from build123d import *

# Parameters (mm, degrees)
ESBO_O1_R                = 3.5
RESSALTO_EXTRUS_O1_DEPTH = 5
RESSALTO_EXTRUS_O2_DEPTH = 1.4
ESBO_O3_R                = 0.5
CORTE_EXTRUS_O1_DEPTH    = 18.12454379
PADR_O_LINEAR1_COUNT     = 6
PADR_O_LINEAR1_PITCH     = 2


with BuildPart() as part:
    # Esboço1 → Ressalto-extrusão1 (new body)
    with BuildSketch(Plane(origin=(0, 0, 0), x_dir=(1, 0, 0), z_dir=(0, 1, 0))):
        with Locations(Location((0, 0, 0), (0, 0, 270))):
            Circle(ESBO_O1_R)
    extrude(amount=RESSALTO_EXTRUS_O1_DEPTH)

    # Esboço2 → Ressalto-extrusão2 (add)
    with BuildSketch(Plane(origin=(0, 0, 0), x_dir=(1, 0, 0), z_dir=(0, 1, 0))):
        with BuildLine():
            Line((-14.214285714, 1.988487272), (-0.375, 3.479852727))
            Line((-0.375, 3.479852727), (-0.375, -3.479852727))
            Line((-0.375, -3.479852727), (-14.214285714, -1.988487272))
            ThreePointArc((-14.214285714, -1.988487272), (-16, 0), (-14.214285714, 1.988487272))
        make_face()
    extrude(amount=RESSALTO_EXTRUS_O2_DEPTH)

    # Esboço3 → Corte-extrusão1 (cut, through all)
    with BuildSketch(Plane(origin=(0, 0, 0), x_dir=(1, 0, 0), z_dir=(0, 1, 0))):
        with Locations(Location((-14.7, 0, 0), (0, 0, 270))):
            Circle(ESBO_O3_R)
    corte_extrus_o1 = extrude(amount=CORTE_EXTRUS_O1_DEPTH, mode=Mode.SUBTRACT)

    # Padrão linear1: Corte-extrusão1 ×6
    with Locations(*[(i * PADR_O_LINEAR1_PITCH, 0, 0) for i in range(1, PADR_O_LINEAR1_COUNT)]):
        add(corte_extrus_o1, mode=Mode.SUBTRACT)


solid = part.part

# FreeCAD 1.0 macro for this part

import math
import FreeCAD as App
import Part
import Sketcher
from FreeCAD import Vector
Q = App.Units.Quantity

doc = App.newDocument("Part")
body = doc.addObject("PartDesign::Body", "Body")

# Sketch on XZ plane
sketch1 = doc.addObject("Sketcher::SketchObject", "Sketch")
body.addObject(sketch1)
sketch1.AttachmentSupport = (doc.XZ_Plane, [""])
sketch1.MapMode = "FlatFace"
sketch1.addGeometry(Part.Circle(Vector(0, 0, 0), Vector(0, 0, 1), 3.5), False)
sketch1.addConstraint([
    Sketcher.Constraint("Coincident", 0, 3, -1, 1),
    Sketcher.Constraint("Diameter", 0, Q("7 mm")),
])
pad1 = doc.addObject("PartDesign::Pad", "Pad")
body.addObject(pad1)
pad1.Profile = sketch1
pad1.Length = 5
pad1.Reversed = True

# Sketch on XZ plane
sketch2 = doc.addObject("Sketcher::SketchObject", "Sketch001")
body.addObject(sketch2)
sketch2.AttachmentSupport = (doc.XZ_Plane, [""])
sketch2.MapMode = "FlatFace"
sketch2.addGeometry([
    Part.LineSegment(Vector(-0.4, -3.5, 0), Vector(-14.2, -2, 0)),
    Part.ArcOfCircle(Part.Circle(Vector(-14, 0, 0), Vector(0, 0, 1), 2), math.radians(96), math.radians(264)),
    Part.LineSegment(Vector(-14.2, 2, 0), Vector(-0.4, 3.5, 0)),
    Part.LineSegment(Vector(-0.4, 3.5, 0), Vector(-0.4, -3.5, 0)),
], False)
sketch2.addConstraint([
    Sketcher.Constraint("Tangent", 0, 2, 1, 2),
    Sketcher.Constraint("Tangent", 1, 1, 2, 1),
    Sketcher.Constraint("Coincident", 2, 2, 3, 1),
    Sketcher.Constraint("Coincident", 3, 2, 0, 1),
    Sketcher.Constraint("Vertical", 3),
    Sketcher.Constraint("Symmetric", 0, 2, 1, 1, -1),
    Sketcher.Constraint("Radius", 1, Q("2 mm")),
    Sketcher.Constraint("DistanceX", 1, 3, -1, 1, Q("14 mm")),
    Sketcher.Constraint("DistanceX", 2, 2, -1, 1, Q("0.375 mm")),
    Sketcher.Constraint("Distance", 0, Q("13.919411 mm")),
])
pad2 = doc.addObject("PartDesign::Pad", "Pad001")
body.addObject(pad2)
pad2.Profile = sketch2
pad2.Length = 1.4
pad2.Reversed = True

# Sketch on XZ plane
sketch3 = doc.addObject("Sketcher::SketchObject", "Sketch002")
body.addObject(sketch3)
sketch3.AttachmentSupport = (doc.XZ_Plane, [""])
sketch3.MapMode = "FlatFace"
sketch3.addGeometry(Part.Circle(Vector(-14.7, 0, 0), Vector(0, 0, 1), 0.5), False)
sketch3.addConstraint([
    Sketcher.Constraint("PointOnObject", 0, 3, -1),
    Sketcher.Constraint("Diameter", 0, Q("1 mm")),
    Sketcher.Constraint("DistanceX", 0, 3, -1, 1, Q("14.7 mm")),
])
pocket1 = doc.addObject("PartDesign::Pocket", "Pocket")
body.addObject(pocket1)
pocket1.Profile = sketch3
pocket1.Type = "ThroughAll"
doc.recompute()

linearpattern = doc.addObject("PartDesign::LinearPattern", "LinearPattern")
body.addObject(linearpattern)
linearpattern.Originals = [pocket1]
linearpattern.Direction = (doc.X_Axis, [""])
linearpattern.Mode = "offset"
linearpattern.Offset = 2
linearpattern.Occurrences = 6
body.Tip = linearpattern

doc.recompute()
